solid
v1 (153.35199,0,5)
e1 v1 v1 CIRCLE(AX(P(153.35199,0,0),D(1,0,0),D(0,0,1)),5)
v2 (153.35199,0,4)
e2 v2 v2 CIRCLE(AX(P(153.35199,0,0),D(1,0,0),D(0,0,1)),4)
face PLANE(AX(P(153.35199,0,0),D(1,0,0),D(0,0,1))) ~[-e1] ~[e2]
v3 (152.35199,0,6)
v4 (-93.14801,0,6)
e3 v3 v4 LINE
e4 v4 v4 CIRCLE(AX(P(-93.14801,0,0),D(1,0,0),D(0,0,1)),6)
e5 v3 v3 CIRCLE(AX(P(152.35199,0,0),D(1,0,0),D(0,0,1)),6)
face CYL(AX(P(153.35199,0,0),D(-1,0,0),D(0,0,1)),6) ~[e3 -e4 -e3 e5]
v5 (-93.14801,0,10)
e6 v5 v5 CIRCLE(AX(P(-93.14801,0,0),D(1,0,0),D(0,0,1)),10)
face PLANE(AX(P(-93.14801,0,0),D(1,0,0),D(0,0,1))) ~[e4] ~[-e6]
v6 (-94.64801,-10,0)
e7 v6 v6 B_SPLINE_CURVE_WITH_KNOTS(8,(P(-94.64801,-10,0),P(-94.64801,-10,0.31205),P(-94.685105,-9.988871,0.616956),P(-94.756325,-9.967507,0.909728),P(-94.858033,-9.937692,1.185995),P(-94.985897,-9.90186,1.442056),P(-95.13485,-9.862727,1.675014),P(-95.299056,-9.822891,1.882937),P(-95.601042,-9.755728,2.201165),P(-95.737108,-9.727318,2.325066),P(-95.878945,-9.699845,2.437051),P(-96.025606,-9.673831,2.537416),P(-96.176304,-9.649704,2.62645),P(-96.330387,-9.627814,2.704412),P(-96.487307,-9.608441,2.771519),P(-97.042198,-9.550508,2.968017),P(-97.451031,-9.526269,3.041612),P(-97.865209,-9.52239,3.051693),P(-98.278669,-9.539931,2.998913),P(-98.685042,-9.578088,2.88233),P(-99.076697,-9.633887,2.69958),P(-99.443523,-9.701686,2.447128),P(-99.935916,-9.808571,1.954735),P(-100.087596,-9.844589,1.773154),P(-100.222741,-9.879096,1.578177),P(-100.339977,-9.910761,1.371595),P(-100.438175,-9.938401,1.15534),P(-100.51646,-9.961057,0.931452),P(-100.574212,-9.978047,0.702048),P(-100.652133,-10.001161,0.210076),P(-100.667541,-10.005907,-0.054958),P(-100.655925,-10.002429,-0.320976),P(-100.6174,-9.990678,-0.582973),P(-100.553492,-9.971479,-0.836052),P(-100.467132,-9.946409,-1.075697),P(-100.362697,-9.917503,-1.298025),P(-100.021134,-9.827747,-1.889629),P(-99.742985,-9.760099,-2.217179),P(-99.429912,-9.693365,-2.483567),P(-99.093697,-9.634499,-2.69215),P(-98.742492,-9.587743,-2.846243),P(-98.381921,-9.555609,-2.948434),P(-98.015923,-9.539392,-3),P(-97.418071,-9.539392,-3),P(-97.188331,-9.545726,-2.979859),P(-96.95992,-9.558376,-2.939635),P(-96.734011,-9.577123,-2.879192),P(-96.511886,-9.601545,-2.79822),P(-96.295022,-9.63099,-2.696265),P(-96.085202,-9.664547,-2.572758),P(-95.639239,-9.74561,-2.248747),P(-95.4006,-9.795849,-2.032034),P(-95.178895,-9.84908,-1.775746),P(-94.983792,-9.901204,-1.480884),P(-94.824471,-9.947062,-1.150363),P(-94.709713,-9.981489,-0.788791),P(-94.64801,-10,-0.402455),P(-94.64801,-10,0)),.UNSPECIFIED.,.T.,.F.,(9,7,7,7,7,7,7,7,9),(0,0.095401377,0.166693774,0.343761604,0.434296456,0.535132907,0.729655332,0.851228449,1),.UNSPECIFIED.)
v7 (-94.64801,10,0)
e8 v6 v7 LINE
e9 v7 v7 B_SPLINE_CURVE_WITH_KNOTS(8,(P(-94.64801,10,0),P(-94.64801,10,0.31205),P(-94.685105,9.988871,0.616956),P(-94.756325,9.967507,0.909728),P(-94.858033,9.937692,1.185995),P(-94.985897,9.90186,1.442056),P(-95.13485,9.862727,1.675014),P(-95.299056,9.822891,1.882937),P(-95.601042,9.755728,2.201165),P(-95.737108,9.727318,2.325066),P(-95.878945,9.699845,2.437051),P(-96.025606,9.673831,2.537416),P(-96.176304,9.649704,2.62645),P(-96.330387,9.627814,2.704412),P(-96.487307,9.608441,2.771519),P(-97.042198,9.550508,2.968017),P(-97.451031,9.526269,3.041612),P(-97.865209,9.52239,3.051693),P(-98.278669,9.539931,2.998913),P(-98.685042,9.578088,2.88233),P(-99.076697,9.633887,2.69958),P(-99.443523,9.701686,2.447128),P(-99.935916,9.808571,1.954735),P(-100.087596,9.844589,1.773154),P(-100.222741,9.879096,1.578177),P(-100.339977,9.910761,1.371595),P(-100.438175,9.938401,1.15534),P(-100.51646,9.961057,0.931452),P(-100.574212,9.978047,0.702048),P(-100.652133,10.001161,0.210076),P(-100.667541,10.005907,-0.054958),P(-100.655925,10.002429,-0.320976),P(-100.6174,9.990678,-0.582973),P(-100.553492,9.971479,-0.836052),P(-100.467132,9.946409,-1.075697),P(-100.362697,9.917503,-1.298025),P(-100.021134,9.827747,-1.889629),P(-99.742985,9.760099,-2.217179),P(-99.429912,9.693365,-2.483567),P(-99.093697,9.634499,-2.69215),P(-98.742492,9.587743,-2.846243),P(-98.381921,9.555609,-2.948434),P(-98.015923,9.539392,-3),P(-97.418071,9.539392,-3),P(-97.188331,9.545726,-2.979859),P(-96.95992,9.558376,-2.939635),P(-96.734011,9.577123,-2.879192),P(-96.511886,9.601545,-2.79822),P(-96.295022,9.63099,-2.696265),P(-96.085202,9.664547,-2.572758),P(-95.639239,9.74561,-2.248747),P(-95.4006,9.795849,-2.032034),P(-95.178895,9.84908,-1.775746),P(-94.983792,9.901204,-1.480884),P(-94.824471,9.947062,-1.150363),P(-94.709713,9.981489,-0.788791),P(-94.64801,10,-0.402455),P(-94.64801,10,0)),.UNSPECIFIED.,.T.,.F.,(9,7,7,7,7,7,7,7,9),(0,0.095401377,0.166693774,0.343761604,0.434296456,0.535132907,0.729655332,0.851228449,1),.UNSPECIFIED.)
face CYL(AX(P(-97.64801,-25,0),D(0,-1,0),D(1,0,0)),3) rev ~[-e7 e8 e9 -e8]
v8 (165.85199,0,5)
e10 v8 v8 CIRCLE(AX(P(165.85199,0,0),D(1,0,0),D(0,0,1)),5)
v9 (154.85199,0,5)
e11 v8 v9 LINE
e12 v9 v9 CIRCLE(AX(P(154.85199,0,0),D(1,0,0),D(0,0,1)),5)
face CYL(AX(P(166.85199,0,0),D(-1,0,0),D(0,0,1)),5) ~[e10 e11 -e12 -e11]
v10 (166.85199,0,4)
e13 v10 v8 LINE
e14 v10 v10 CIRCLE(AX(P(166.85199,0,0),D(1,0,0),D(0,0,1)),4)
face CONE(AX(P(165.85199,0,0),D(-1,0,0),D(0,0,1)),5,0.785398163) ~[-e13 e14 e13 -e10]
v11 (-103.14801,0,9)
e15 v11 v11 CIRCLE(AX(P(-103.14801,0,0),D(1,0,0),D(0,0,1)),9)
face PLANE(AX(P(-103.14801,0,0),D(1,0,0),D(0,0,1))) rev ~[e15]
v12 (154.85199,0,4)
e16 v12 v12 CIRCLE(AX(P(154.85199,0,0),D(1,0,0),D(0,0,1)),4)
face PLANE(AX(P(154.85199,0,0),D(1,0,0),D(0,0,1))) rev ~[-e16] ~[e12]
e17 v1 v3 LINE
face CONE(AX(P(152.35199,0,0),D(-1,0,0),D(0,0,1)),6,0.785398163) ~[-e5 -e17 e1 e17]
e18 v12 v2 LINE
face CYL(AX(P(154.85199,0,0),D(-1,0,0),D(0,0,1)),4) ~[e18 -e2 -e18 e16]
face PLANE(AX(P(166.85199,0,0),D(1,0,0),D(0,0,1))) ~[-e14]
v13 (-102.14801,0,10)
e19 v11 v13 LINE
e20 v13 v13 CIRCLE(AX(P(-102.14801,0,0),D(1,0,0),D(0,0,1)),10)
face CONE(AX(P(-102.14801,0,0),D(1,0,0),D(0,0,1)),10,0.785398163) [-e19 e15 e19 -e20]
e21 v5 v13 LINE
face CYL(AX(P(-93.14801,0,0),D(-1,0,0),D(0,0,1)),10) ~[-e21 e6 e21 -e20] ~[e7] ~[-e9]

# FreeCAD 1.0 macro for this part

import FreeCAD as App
import Part
import Sketcher
Q = App.Units.Quantity


def edges_at(feature, points):
    """Names of the edges that pass closest to the given points."""
    edges = feature.Shape.Edges
    near = lambda p: min(range(len(edges)), key=lambda i: edges[i].distToShape(Part.Vertex(*p))[0])
    return sorted({f"Edge{near(p) + 1}" for p in points})

doc = App.newDocument("Part")
body = doc.addObject("PartDesign::Body", "Body")

# Sketch on XZ plane
sketch1 = body.newObject("Sketcher::SketchObject", "Sketch")
sketch1.AttachmentSupport = (doc.getObject("XZ_Plane"), [""])
sketch1.MapMode = "FlatFace"
sketch1.addGeometry([
    Part.LineSegment(App.Vector(-103.1, 10, 0), App.Vector(-103.1, 0, 0)),  # 0
    Part.LineSegment(App.Vector(-103.1, 0, 0), App.Vector(166.9, 0, 0)),  # 1
    Part.LineSegment(App.Vector(166.9, 0, 0), App.Vector(166.9, 5, 0)),  # 2
    Part.LineSegment(App.Vector(166.9, 5, 0), App.Vector(154.9, 5, 0)),  # 3
    Part.LineSegment(App.Vector(154.9, 5, 0), App.Vector(154.9, 4, 0)),  # 4
    Part.LineSegment(App.Vector(154.9, 4, 0), App.Vector(153.4, 4, 0)),  # 5
    Part.LineSegment(App.Vector(153.4, 4, 0), App.Vector(153.4, 6, 0)),  # 6
    Part.LineSegment(App.Vector(153.4, 6, 0), App.Vector(-93.1, 6, 0)),  # 7
    Part.LineSegment(App.Vector(-93.1, 6, 0), App.Vector(-93.1, 10, 0)),  # 8
    Part.LineSegment(App.Vector(-93.1, 10, 0), App.Vector(-103.1, 10, 0)),  # 9
], False)
sketch1.addConstraint([
    Sketcher.Constraint("Coincident", 0, 2, 1, 1),
    Sketcher.Constraint("Coincident", 1, 2, 2, 1),
    Sketcher.Constraint("Coincident", 2, 2, 3, 1),
    Sketcher.Constraint("Coincident", 3, 2, 4, 1),
    Sketcher.Constraint("Coincident", 4, 2, 5, 1),
    Sketcher.Constraint("Coincident", 5, 2, 6, 1),
    Sketcher.Constraint("Coincident", 6, 2, 7, 1),
    Sketcher.Constraint("Coincident", 7, 2, 8, 1),
    Sketcher.Constraint("Coincident", 8, 2, 9, 1),
    Sketcher.Constraint("Coincident", 9, 2, 0, 1),
    Sketcher.Constraint("Vertical", 0),
    Sketcher.Constraint("Horizontal", 1),
    Sketcher.Constraint("Vertical", 2),
    Sketcher.Constraint("Horizontal", 3),
    Sketcher.Constraint("Vertical", 4),
    Sketcher.Constraint("Horizontal", 5),
    Sketcher.Constraint("Vertical", 6),
    Sketcher.Constraint("Horizontal", 7),
    Sketcher.Constraint("Vertical", 8),
    Sketcher.Constraint("Horizontal", 9),
    Sketcher.Constraint("PointOnObject", 0, 2, -1),
    Sketcher.Constraint("Equal", 9, 0),
    Sketcher.Constraint("DistanceX", 1, 1, 1, 2, Q("270 mm")),
    Sketcher.Constraint("DistanceX", 3, 2, 3, 1, Q("12 mm")),
    Sketcher.Constraint("DistanceX", 9, 2, 9, 1, Q("10 mm")),
    Sketcher.Constraint("DistanceY", 2, 1, 2, 2, Q("5 mm")),
    Sketcher.Constraint("DistanceY", 4, 2, 4, 1, Q("1 mm")),
    Sketcher.Constraint("DistanceY", 6, 1, 6, 2, Q("2 mm")),
    Sketcher.Constraint("DistanceX", 5, 2, 5, 1, Q("1.5 mm")),
    Sketcher.Constraint("DistanceX", 0, 2, -1, 1, Q("103.14801 mm")),
])
revolution = body.newObject("PartDesign::Revolution", "Revolution")
revolution.Profile = sketch1
revolution.ReferenceAxis = (sketch1, ["H_Axis"])
revolution.Angle = 360
doc.recompute()

chamfer = body.newObject("PartDesign::Chamfer", "Chamfer")
chamfer.Base = (revolution, edges_at(revolution, [(153.352, 0, -6), (-103.148, 0, -10), (166.852, 0, -5)]))
chamfer.Size = 1

# Sketch on XZ plane
sketch2 = body.newObject("Sketcher::SketchObject", "Sketch001")
sketch2.AttachmentSupport = (doc.getObject("XZ_Plane"), [""])
sketch2.MapMode = "FlatFace"
sketch2.AttachmentOffset = App.Placement(App.Vector(0, 0, 25), App.Rotation())
sketch2.addGeometry(Part.Circle(App.Vector(-97.6, 0, 0), App.Vector(0, 0, 1), 3), False)
sketch2.addConstraint([
    Sketcher.Constraint("PointOnObject", 0, 3, -1),
    Sketcher.Constraint("Diameter", 0, Q("6 mm")),
    Sketcher.Constraint("DistanceX", 0, 3, -1, 1, Q("97.64801 mm")),
])
pocket1 = body.newObject("PartDesign::Pocket", "Pocket")
pocket1.Profile = sketch2
pocket1.Length = 39.4

doc.recompute()
